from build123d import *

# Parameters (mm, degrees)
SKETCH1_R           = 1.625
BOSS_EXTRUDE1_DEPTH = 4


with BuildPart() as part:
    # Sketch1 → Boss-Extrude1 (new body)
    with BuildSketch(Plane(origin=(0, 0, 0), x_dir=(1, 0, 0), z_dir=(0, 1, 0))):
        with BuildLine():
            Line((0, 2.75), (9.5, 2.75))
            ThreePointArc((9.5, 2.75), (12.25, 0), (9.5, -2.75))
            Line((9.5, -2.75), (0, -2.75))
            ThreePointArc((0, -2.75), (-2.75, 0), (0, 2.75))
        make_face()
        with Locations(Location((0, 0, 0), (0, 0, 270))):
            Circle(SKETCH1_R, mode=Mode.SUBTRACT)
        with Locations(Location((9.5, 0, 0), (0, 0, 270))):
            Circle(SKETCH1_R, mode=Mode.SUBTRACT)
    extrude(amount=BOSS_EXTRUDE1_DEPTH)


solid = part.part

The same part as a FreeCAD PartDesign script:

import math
import FreeCAD as App
import Part
import Sketcher
from FreeCAD import Vector

doc = App.newDocument("Part")
params = doc.addObject("Spreadsheet::Sheet", "Params")
for row, (alias, value) in enumerate([
    ("sketch1_diameter", "3.25 mm"),
    ("sketch1_radius", "2.75 mm"),
    ("sketch1_width", "9.5 mm"),
    ("pad1_length", "4 mm"),
], start=1):
    params.set(f"A{row}", alias)
    params.set(f"B{row}", "=" + value)
    params.setAlias(f"B{row}", alias)

body = doc.addObject("PartDesign::Body", "Body")

# Sketch on XZ plane
sketch1 = doc.addObject("Sketcher::SketchObject", "Sketch")
body.addObject(sketch1)
sketch1.AttachmentSupport = (doc.XZ_Plane, [""])
sketch1.MapMode = "FlatFace"
sketch1.addGeometry([
    Part.LineSegment(Vector(9.5, -2.8, 0), Vector(0, -2.8, 0)),  # 0
    Part.ArcOfCircle(Part.Circle(Vector(0, 0, 0), Vector(0, 0, 1), 2.8), math.radians(90), math.radians(270)),  # 1
    Part.LineSegment(Vector(0, 2.8, 0), Vector(9.5, 2.8, 0)),  # 2
    Part.ArcOfCircle(Part.Circle(Vector(9.5, 0, 0), Vector(0, 0, 1), 2.8), math.radians(-90), math.radians(90)),  # 3
    Part.Circle(Vector(9.5, 0, 0), Vector(0, 0, 1), 1.6),  # 4
    Part.Circle(Vector(0, 0, 0), Vector(0, 0, 1), 1.6),  # 5
], False)
sketch1.addConstraint([
    Sketcher.Constraint("Tangent", 0, 2, 1, 2),
    Sketcher.Constraint("Tangent", 1, 1, 2, 1),
    Sketcher.Constraint("Tangent", 2, 2, 3, 2),
    Sketcher.Constraint("Tangent", 3, 1, 0, 1),
    Sketcher.Constraint("Horizontal", 0),
    Sketcher.Constraint("Horizontal", 2),
    Sketcher.Constraint("Coincident", 1, 3, -1, 1),
    Sketcher.Constraint("Coincident", 5, 3, -1, 1),
    Sketcher.Constraint("Coincident", 4, 3, 3, 3),
    Sketcher.Constraint("Equal", 4, 5),
    Sketcher.Constraint("Diameter", 4, 3.25),
    Sketcher.Constraint("Radius", 1, 2.75),
    Sketcher.Constraint("DistanceX", 0, 2, 0, 1, 9.5),
])
sketch1.setExpression("Constraints[10]", "Params.sketch1_diameter")
sketch1.setExpression("Constraints[11]", "Params.sketch1_radius")
sketch1.setExpression("Constraints[12]", "Params.sketch1_width")
pad1 = doc.addObject("PartDesign::Pad", "Pad")
body.addObject(pad1)
pad1.Profile = sketch1
pad1.setExpression("Length", "Params.pad1_length")
pad1.Reversed = True

doc.recompute()
